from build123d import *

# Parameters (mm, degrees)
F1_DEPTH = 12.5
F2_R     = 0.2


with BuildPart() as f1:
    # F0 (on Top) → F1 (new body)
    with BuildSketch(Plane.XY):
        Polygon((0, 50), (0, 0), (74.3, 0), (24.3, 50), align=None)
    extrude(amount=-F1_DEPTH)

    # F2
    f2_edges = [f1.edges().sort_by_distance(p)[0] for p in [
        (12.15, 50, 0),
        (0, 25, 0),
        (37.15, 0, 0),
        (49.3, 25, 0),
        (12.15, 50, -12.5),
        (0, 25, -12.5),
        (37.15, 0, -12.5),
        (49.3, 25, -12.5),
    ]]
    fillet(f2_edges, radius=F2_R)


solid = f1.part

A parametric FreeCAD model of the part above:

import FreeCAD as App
import Part
import Sketcher

V = App.Vector
Q = App.Units.Quantity


def edges_at(feature, points):
    """Names of the edges that pass closest to the given points."""
    edges = feature.Shape.Edges
    near = lambda p: min(range(len(edges)), key=lambda i: edges[i].distToShape(Part.Vertex(*p))[0])
    return sorted({f"Edge{near(p) + 1}" for p in points})


def add_polygon(sketch, points):
    """Adds a closed chain of lines whose ends are joined by coincident constraints."""
    first, n = sketch.GeometryCount, len(points)
    for a, b in zip(points, points[1:] + points[:1]):
        sketch.addGeometry(Part.LineSegment(App.Vector(*a, 0), App.Vector(*b, 0)), False)
    for i in range(n):
        sketch.addConstraint(Sketcher.Constraint("Coincident", first + i, 2, first + (i + 1) % n, 1))

doc = App.newDocument("Part")
body = doc.addObject("PartDesign::Body", "Body")

sketch1 = body.newObject("Sketcher::SketchObject", "Sketch")
sketch1.AttachmentSupport = (doc.getObject("XY_Plane"), [""])
sketch1.MapMode = "FlatFace"
add_polygon(sketch1, [(0, 50), (0, 0), (74.3, 0), (24.3, 50)])
sketch1.addConstraint([
    Sketcher.Constraint("Vertical", 0),
    Sketcher.Constraint("Horizontal", 1),
    Sketcher.Constraint("Horizontal", 3),
    Sketcher.Constraint("Coincident", 0, 2, -1, 1),
    Sketcher.Constraint("DistanceY", 0, 2, 0, 1, Q("50 mm")),
    Sketcher.Constraint("Angle", 2, Q("135 deg")),
    Sketcher.Constraint("DistanceX", 1, 1, 1, 2, Q("74.3 mm")),
])
pad1 = body.newObject("PartDesign::Pad", "Pad")
pad1.Profile = sketch1
pad1.Length = 12.5
pad1.Reversed = True
doc.recompute()

fillet = body.newObject("PartDesign::Fillet", "Fillet")
fillet.Base = (pad1, edges_at(pad1, [
    (12.15, 50, 0),
    (0, 25, 0),
    (37.15, 0, 0),
    (49.3, 25, 0),
    (12.15, 50, -12.5),
    (0, 25, -12.5),
    (37.15, 0, -12.5),
    (49.3, 25, -12.5),
]))
fillet.Radius = 0.2

doc.recompute()
